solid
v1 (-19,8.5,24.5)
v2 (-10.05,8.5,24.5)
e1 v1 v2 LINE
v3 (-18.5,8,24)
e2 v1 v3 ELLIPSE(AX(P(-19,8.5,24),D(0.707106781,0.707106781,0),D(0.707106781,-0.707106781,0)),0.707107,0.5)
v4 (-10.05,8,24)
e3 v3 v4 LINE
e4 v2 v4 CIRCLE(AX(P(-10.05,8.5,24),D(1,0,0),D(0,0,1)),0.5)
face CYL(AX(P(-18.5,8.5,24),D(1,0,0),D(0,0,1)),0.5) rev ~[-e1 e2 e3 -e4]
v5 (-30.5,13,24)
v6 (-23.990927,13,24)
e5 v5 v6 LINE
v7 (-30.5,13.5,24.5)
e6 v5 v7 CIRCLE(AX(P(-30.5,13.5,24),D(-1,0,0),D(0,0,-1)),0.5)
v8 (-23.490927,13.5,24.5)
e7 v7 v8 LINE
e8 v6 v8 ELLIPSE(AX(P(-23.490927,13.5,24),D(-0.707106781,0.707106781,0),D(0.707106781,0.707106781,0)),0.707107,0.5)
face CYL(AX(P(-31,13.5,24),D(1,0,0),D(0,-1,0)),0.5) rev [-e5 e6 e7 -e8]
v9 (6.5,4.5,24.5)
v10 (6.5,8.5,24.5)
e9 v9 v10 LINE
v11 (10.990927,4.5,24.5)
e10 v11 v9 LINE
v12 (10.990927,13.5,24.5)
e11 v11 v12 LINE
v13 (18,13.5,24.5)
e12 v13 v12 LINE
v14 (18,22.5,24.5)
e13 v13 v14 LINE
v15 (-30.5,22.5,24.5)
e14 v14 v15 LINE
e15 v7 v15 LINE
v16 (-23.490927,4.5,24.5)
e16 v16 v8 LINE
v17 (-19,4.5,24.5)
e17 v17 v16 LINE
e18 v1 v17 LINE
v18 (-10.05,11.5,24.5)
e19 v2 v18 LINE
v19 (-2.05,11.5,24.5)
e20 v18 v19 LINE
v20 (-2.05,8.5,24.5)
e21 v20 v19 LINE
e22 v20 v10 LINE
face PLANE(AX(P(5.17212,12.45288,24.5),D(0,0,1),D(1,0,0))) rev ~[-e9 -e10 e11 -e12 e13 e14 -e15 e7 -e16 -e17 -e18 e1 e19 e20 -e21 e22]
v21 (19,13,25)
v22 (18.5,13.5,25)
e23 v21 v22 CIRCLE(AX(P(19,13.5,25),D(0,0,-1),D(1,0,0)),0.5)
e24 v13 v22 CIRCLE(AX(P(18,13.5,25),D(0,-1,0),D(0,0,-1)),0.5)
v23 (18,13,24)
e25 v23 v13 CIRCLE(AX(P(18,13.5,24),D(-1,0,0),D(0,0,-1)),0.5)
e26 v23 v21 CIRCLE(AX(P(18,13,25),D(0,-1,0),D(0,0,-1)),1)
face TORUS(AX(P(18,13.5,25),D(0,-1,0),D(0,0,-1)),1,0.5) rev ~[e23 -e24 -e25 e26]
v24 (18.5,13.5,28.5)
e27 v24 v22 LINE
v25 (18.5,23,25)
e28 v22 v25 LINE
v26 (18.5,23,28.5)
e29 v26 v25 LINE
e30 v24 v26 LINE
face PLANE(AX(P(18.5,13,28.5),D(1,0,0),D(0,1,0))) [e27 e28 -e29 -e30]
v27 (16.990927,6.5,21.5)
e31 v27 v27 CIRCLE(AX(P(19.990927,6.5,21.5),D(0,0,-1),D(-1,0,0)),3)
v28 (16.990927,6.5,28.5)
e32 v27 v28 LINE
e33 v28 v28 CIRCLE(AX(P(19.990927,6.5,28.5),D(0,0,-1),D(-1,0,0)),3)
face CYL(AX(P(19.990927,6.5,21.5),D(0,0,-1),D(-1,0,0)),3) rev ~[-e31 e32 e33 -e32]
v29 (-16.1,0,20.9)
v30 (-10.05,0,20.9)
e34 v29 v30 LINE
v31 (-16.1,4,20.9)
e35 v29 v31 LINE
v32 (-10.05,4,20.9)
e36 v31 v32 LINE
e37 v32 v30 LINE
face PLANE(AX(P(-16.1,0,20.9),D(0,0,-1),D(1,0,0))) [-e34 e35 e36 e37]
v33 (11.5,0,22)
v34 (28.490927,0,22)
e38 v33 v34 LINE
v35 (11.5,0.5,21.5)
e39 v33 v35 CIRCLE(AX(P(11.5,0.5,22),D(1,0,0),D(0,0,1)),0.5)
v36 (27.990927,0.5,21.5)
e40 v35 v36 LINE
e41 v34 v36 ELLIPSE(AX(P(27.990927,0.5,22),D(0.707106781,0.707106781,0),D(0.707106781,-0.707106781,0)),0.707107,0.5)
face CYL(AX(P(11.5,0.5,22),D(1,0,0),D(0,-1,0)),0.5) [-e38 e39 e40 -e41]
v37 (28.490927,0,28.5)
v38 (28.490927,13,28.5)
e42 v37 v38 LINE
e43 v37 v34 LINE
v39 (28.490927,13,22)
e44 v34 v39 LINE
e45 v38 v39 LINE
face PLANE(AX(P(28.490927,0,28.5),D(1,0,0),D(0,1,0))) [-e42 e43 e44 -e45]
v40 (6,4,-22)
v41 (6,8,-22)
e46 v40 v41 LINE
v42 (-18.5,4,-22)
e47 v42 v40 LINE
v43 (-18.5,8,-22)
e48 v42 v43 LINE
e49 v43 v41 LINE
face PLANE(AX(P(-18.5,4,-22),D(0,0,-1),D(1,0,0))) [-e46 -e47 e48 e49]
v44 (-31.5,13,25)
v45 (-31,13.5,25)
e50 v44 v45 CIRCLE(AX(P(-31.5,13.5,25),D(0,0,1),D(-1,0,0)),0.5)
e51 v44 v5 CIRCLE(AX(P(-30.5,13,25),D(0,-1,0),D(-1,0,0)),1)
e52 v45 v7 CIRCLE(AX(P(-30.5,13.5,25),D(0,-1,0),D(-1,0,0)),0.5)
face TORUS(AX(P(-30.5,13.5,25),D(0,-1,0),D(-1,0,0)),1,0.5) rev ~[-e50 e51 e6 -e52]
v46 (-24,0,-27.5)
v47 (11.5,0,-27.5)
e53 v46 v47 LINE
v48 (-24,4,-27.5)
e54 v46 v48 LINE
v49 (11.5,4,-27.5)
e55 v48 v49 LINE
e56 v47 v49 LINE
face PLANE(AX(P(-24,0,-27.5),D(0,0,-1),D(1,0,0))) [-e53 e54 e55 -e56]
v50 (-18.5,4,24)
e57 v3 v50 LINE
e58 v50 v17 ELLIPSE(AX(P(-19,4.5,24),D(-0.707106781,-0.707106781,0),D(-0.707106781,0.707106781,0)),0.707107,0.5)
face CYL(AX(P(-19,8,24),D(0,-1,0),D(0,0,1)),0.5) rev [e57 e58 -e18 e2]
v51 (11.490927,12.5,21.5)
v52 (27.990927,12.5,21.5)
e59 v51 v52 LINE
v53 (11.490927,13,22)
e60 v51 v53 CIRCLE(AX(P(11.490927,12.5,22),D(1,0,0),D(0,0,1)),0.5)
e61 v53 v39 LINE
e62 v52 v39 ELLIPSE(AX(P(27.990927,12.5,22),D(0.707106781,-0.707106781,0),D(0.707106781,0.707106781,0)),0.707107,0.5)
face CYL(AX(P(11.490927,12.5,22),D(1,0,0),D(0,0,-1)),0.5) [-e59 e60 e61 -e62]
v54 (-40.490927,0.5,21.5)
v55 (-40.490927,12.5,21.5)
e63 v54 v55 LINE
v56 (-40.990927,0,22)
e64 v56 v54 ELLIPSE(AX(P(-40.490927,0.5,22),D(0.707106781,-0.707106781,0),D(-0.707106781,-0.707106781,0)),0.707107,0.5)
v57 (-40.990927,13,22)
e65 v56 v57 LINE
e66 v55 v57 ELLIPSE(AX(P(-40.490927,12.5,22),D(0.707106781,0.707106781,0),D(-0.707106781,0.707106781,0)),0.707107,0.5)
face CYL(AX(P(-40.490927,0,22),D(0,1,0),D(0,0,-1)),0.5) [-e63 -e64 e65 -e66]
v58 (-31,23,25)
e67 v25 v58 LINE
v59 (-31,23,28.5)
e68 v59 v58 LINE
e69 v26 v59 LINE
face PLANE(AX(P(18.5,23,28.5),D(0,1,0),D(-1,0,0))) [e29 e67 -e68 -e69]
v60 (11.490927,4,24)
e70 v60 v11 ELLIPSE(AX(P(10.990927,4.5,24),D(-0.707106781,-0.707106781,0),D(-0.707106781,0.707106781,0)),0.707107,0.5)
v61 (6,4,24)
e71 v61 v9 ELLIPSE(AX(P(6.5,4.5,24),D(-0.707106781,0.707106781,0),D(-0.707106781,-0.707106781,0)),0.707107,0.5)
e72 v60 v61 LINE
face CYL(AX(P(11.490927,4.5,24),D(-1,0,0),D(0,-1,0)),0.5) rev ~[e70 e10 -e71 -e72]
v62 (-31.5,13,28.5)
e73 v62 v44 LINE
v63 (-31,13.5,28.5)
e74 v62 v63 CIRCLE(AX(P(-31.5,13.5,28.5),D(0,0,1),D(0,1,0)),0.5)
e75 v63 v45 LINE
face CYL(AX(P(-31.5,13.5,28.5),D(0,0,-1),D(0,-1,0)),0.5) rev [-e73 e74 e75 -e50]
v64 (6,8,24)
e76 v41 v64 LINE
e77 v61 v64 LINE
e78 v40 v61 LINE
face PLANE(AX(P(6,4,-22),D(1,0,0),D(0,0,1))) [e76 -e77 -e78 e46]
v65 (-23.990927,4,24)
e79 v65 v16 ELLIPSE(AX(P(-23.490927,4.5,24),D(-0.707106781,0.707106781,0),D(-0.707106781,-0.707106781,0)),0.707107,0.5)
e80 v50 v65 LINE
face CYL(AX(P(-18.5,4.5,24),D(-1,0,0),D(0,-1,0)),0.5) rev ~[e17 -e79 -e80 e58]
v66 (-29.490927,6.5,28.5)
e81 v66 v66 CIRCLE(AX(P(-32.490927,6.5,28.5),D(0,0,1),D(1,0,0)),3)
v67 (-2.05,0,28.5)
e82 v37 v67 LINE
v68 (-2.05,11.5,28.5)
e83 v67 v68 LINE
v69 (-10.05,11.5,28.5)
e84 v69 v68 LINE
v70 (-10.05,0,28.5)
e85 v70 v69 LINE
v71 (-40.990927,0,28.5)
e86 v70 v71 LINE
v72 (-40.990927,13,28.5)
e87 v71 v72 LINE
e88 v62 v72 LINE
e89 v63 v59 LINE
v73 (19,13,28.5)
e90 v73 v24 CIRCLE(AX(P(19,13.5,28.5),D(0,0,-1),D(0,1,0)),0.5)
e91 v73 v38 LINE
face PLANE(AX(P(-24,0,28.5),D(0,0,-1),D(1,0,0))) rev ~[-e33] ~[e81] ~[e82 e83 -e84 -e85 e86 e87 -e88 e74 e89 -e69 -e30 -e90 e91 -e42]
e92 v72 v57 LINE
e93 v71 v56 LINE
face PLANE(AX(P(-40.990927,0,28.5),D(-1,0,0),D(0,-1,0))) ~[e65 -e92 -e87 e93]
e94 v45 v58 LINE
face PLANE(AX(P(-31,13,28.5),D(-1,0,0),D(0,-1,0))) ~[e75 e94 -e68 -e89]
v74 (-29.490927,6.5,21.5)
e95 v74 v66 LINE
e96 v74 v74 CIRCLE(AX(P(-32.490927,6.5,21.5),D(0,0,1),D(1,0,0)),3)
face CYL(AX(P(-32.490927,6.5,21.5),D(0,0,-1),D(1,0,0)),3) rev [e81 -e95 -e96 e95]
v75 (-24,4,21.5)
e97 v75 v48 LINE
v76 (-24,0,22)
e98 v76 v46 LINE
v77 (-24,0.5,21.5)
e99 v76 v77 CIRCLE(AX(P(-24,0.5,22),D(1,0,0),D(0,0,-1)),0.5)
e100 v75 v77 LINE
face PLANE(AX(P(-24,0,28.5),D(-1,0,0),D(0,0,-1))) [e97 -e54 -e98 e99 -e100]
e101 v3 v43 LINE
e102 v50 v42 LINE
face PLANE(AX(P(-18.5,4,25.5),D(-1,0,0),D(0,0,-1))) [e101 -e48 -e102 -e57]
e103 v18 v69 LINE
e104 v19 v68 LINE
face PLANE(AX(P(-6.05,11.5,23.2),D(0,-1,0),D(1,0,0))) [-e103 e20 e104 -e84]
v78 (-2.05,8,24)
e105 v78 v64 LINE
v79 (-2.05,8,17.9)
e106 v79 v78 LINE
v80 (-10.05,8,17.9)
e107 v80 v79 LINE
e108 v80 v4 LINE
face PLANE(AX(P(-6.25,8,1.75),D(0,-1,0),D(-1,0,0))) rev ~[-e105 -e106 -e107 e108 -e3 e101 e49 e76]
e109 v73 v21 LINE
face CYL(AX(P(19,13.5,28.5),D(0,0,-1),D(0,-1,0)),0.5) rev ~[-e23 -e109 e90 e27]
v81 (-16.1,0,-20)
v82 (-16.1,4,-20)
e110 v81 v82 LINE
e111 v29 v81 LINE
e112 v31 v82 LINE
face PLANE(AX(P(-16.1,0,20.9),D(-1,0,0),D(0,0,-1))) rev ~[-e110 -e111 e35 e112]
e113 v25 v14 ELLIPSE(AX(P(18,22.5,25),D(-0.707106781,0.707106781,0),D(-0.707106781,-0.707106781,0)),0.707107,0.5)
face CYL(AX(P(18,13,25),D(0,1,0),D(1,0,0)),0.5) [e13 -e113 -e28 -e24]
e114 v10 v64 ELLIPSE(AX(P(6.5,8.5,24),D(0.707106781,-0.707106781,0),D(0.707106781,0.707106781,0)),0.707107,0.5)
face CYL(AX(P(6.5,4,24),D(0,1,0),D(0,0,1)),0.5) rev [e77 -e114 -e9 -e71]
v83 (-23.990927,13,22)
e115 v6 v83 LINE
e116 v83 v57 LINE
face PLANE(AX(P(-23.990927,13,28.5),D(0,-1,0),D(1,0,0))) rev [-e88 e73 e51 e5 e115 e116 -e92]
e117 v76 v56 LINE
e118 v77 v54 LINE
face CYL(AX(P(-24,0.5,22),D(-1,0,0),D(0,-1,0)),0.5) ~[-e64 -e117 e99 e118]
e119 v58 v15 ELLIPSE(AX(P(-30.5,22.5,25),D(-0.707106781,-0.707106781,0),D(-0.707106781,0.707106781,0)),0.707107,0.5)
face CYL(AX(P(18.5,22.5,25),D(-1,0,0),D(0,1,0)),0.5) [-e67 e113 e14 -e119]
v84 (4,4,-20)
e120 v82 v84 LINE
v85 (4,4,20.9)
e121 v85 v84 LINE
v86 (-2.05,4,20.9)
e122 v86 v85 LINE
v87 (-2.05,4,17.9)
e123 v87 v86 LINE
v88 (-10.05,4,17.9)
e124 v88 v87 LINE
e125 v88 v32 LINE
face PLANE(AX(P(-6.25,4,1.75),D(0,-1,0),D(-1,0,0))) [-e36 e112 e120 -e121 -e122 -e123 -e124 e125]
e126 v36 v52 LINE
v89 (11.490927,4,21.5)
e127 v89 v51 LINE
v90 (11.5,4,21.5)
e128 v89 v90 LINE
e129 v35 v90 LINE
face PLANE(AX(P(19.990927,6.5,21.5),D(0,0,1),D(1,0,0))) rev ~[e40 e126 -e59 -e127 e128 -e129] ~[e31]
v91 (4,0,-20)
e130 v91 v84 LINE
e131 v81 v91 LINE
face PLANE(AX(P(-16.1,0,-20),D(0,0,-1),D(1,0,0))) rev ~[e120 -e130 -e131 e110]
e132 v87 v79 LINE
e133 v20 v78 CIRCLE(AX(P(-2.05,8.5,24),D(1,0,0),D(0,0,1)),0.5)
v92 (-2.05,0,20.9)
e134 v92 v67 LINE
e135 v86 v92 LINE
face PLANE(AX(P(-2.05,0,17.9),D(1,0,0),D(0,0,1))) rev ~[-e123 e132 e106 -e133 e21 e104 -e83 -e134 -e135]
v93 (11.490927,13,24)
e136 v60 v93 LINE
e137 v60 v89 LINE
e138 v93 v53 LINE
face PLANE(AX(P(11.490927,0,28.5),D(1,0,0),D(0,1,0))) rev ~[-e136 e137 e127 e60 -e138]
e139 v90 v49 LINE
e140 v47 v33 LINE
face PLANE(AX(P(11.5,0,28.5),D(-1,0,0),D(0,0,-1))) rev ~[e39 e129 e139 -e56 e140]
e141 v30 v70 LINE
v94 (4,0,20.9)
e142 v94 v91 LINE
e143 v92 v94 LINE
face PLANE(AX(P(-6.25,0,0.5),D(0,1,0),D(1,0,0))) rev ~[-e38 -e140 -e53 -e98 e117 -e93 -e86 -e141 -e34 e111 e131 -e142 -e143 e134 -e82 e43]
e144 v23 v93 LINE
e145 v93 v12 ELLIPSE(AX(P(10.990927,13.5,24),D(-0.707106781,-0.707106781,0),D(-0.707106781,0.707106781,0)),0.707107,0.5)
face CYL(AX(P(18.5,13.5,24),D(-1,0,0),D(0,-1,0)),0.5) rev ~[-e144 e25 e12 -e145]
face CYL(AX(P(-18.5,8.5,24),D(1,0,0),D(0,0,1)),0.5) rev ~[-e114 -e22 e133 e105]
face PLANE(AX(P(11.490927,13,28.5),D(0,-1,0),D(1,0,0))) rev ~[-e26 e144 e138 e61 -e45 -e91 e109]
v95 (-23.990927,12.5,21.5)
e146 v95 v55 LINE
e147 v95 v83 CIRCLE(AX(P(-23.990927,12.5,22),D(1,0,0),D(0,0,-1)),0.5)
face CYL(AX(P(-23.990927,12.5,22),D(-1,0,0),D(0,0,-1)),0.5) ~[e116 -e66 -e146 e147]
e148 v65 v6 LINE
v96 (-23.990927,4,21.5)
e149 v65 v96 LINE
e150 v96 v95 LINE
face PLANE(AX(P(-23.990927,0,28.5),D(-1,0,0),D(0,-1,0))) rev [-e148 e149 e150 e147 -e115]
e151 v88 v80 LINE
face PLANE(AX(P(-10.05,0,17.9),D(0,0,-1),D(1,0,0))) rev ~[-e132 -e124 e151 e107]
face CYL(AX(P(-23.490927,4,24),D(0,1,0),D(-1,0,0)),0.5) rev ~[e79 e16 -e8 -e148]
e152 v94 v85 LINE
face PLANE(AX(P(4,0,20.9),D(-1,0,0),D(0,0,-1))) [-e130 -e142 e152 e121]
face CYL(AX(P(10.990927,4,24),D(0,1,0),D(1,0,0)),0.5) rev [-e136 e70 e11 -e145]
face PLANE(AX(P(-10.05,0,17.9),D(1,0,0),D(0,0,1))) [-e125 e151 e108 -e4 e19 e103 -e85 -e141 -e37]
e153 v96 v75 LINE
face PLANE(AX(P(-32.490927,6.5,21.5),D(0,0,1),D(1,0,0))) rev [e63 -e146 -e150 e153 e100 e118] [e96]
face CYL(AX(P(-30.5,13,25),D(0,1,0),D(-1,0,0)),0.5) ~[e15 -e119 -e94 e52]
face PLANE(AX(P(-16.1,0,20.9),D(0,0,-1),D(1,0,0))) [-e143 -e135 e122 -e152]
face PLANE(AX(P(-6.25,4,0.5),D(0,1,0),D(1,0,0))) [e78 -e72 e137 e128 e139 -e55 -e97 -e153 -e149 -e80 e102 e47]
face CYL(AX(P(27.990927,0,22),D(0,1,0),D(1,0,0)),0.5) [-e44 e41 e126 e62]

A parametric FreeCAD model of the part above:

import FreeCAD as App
import Part
import Sketcher
from FreeCAD import Vector
Q = App.Units.Quantity


def edges_at(feature, points):
    """Names of the edges that pass closest to the given points."""
    edges = feature.Shape.Edges
    near = lambda p: min(range(len(edges)), key=lambda i: edges[i].distToShape(Part.Vertex(*p))[0])
    return sorted({f"Edge{near(p) + 1}" for p in points})


def add_polygon(sketch, points):
    """Adds a closed chain of lines whose ends are joined by coincident constraints."""
    first, n = sketch.GeometryCount, len(points)
    for a, b in zip(points, points[1:] + points[:1]):
        sketch.addGeometry(Part.LineSegment(App.Vector(*a, 0), App.Vector(*b, 0)), False)
    for i in range(n):
        sketch.addConstraint(Sketcher.Constraint("Coincident", first + i, 2, first + (i + 1) % n, 1))

doc = App.newDocument("Part")
params = doc.addObject("Spreadsheet::Sheet", "Params")
for row, (alias, value) in enumerate([
    ("sketch1_height", "56 mm"),
    ("sketch1_width", "35.5 mm"),
    ("sketch1_width2", "20.1 mm"),
    ("sketch1_height2", "40.9 mm"),
    ("pad1_length", "4 mm"),
    ("sketch2_width", "7 mm"),
    ("sketch2_height", "13 mm"),
    ("sketch2_height2", "10 mm"),
    ("sketch2_width2", "17.75 mm"),
    ("pad2_length", "4 mm"),
    ("sketch3_width", "24.5 mm"),
    ("sketch3_height", "47.5 mm"),
    ("pad3_length", "4 mm"),
    ("sketch4_width", "17 mm"),
    ("sketch4_height", "13 mm"),
    ("pad4_length", "7 mm"),
    ("sketch5_diameter", "6 mm"),
    ("pocket1_length", "7 mm"),
    ("fillet_radius", "0.5 mm"),
    ("sketch6_width", "8 mm"),
    ("sketch6_height", "10.6 mm"),
    ("pocket2_length", "11.5 mm"),
], start=1):
    params.set(f"A{row}", alias)
    params.set(f"B{row}", "=" + value)
    params.setAlias(f"B{row}", alias)

body = doc.addObject("PartDesign::Body", "Body")

# Sketch on XZ plane
sketch1 = body.newObject("Sketcher::SketchObject", "Sketch")
sketch1.AttachmentSupport = (doc.getObject("XZ_Plane"), [""])
sketch1.MapMode = "FlatFace"
add_polygon(sketch1, [(-24, -28), (-24, 28), (12, 28), (12, -28)])  # lines 0-3
add_polygon(sketch1, [(4, 21), (-16, 21), (-16, -20), (4, -20)])  # lines 4-7
sketch1.addConstraint(Sketcher.Constraint("Vertical", 0))
sketch1.addConstraint(Sketcher.Constraint("Horizontal", 1))
sketch1.addConstraint(Sketcher.Constraint("Vertical", 2))
sketch1.addConstraint(Sketcher.Constraint("Horizontal", 3))
sketch1.addConstraint(Sketcher.Constraint("Horizontal", 4))
sketch1.addConstraint(Sketcher.Constraint("Vertical", 5))
sketch1.addConstraint(Sketcher.Constraint("Horizontal", 6))
sketch1.addConstraint(Sketcher.Constraint("Vertical", 7))
sketch1.addConstraint(Sketcher.Constraint("DistanceY", 0, 1, 0, 2, Q("56 mm")))
sketch1.addConstraint(Sketcher.Constraint("DistanceX", 1, 1, 1, 2, Q("35.5 mm")))
sketch1.addConstraint(Sketcher.Constraint("DistanceX", 4, 2, 4, 1, Q("20.1 mm")))
sketch1.addConstraint(Sketcher.Constraint("DistanceY", 5, 2, 5, 1, Q("40.9 mm")))
sketch1.addConstraint(Sketcher.Constraint("DistanceX", 0, 2, -1, 1, Q("24 mm")))
sketch1.addConstraint(Sketcher.Constraint("DistanceY", 5, 2, -1, 1, Q("20 mm")))
sketch1.addConstraint(Sketcher.Constraint("DistanceX", -1, 1, 6, 2, Q("4 mm")))
sketch1.addConstraint(Sketcher.Constraint("DistanceY", -1, 1, 0, 2, Q("28.5 mm")))
sketch1.setExpression("Constraints[16]", "Params.sketch1_height")
sketch1.setExpression("Constraints[17]", "Params.sketch1_width")
sketch1.setExpression("Constraints[18]", "Params.sketch1_width2")
sketch1.setExpression("Constraints[19]", "Params.sketch1_height2")
pad1 = body.newObject("PartDesign::Pad", "Pad")
pad1.Profile = sketch1
pad1.setExpression("Length", "Params.pad1_length")
pad1.Reversed = True

# Sketch on XY plane
sketch2 = body.newObject("Sketcher::SketchObject", "Sketch001")
sketch2.AttachmentSupport = (doc.getObject("XY_Plane"), [""])
sketch2.MapMode = "FlatFace"
sketch2.AttachmentOffset = App.Placement(Vector(0, 0, 28.5), App.Rotation())
add_polygon(sketch2, [(-6, 0), (12, 0), (12, 13), (18, 13), (18, 23), (-6, 23)])  # lines 0-5
sketch2.addConstraint(Sketcher.Constraint("Horizontal", 0))
sketch2.addConstraint(Sketcher.Constraint("Vertical", 1))
sketch2.addConstraint(Sketcher.Constraint("Horizontal", 2))
sketch2.addConstraint(Sketcher.Constraint("Vertical", 3))
sketch2.addConstraint(Sketcher.Constraint("Horizontal", 4))
sketch2.addConstraint(Sketcher.Constraint("Vertical", 5))
sketch2.addConstraint(Sketcher.Constraint("PointOnObject", 0, 2, -1))
sketch2.addConstraint(Sketcher.Constraint("DistanceX", 2, 1, 2, 2, Q("7 mm")))
sketch2.addConstraint(Sketcher.Constraint("DistanceY", 1, 1, 1, 2, Q("13 mm")))
sketch2.addConstraint(Sketcher.Constraint("DistanceY", 3, 1, 3, 2, Q("10 mm")))
sketch2.addConstraint(Sketcher.Constraint("DistanceX", 0, 1, 0, 2, Q("17.75 mm")))
sketch2.addConstraint(Sketcher.Constraint("DistanceX", -1, 1, 0, 2, Q("11.5 mm")))
sketch2.setExpression("Constraints[13]", "Params.sketch2_width")
sketch2.setExpression("Constraints[14]", "Params.sketch2_height")
sketch2.setExpression("Constraints[15]", "Params.sketch2_height2")
sketch2.setExpression("Constraints[16]", "Params.sketch2_width2")
pad2 = body.newObject("PartDesign::Pad", "Pad001")
pad2.Profile = sketch2
pad2.setExpression("Length", "Params.pad2_length")
pad2.Reversed = True
doc.recompute()

datumplane = body.newObject("PartDesign::Plane", "DatumPlane")
datumplane.AttachmentSupport = (doc.getObject("YZ_Plane"), [""])
datumplane.MapMode = "FlatFace"
datumplane.AttachmentOffset = App.Placement(Vector(0, 0, -6.25), App.Rotation())
mirrored = body.newObject("PartDesign::Mirrored", "Mirrored")
mirrored.Originals = [pad2]
mirrored.MirrorPlane = (datumplane, [""])
body.Tip = mirrored

# Sketch on XZ plane
sketch3 = body.newObject("Sketcher::SketchObject", "Sketch002")
sketch3.AttachmentSupport = (doc.getObject("XZ_Plane"), [""])
sketch3.MapMode = "FlatFace"
sketch3.AttachmentOffset = App.Placement(Vector(0, 0, -4), App.Rotation())
add_polygon(sketch3, [(-18, 26), (-18, -22), (6, -22), (6, 26)])  # lines 0-3
sketch3.addConstraint(Sketcher.Constraint("Vertical", 0))
sketch3.addConstraint(Sketcher.Constraint("Horizontal", 1))
sketch3.addConstraint(Sketcher.Constraint("Vertical", 2))
sketch3.addConstraint(Sketcher.Constraint("Horizontal", 3))
sketch3.addConstraint(Sketcher.Constraint("DistanceX", 1, 1, 1, 2, Q("24.5 mm")))
sketch3.addConstraint(Sketcher.Constraint("DistanceY", 0, 2, 0, 1, Q("47.5 mm")))
sketch3.addConstraint(Sketcher.Constraint("DistanceY", 0, 2, -1, 1, Q("22 mm")))
sketch3.addConstraint(Sketcher.Constraint("DistanceX", -1, 1, 1, 2, Q("6 mm")))
sketch3.setExpression("Constraints[8]", "Params.sketch3_width")
sketch3.setExpression("Constraints[9]", "Params.sketch3_height")
pad3 = body.newObject("PartDesign::Pad", "Pad002")
pad3.Profile = sketch3
pad3.setExpression("Length", "Params.pad3_length")
pad3.Reversed = True

# Sketch on XY plane
sketch4 = body.newObject("Sketcher::SketchObject", "Sketch003")
sketch4.AttachmentSupport = (doc.getObject("XY_Plane"), [""])
sketch4.MapMode = "FlatFace"
sketch4.AttachmentOffset = App.Placement(Vector(0, 0, 28.5), App.Rotation())
add_polygon(sketch4, [(11, 13), (11, 0), (28, 0), (28, 13)])  # lines 0-3
sketch4.addConstraint(Sketcher.Constraint("Vertical", 0))
sketch4.addConstraint(Sketcher.Constraint("Horizontal", 1))
sketch4.addConstraint(Sketcher.Constraint("Vertical", 2))
sketch4.addConstraint(Sketcher.Constraint("Horizontal", 3))
sketch4.addConstraint(Sketcher.Constraint("PointOnObject", 0, 2, -1))
sketch4.addConstraint(Sketcher.Constraint("DistanceX", 1, 1, 1, 2, Q("17 mm")))
sketch4.addConstraint(Sketcher.Constraint("DistanceY", 0, 2, 0, 1, Q("13 mm")))
sketch4.addConstraint(Sketcher.Constraint("DistanceX", -1, 1, 0, 2, Q("11.490927 mm")))
sketch4.setExpression("Constraints[9]", "Params.sketch4_width")
sketch4.setExpression("Constraints[10]", "Params.sketch4_height")
pad4 = body.newObject("PartDesign::Pad", "Pad003")
pad4.Profile = sketch4
pad4.setExpression("Length", "Params.pad4_length")
pad4.Reversed = True
doc.recompute()

datumplane2 = body.newObject("PartDesign::Plane", "DatumPlane001")
datumplane2.AttachmentSupport = (doc.getObject("YZ_Plane"), [""])
datumplane2.MapMode = "FlatFace"
datumplane2.AttachmentOffset = App.Placement(Vector(0, 0, -6.25), App.Rotation())
mirrored2 = body.newObject("PartDesign::Mirrored", "Mirrored001")
mirrored2.Originals = [pad4]
mirrored2.MirrorPlane = (datumplane2, [""])
body.Tip = mirrored2

# Sketch on XY plane
sketch5 = body.newObject("Sketcher::SketchObject", "Sketch004")
sketch5.AttachmentSupport = (doc.getObject("XY_Plane"), [""])
sketch5.MapMode = "FlatFace"
sketch5.AttachmentOffset = App.Placement(Vector(0, 0, 21.5), App.Rotation())
sketch5.addGeometry(Part.Circle(Vector(20, 6.5, 0), Vector(0, 0, 1), 3), False)
sketch5.addConstraint(Sketcher.Constraint("Diameter", 0, Q("6 mm")))
sketch5.addConstraint(Sketcher.Constraint("DistanceY", -1, 1, 0, 3, Q("6.5 mm")))
sketch5.addConstraint(Sketcher.Constraint("DistanceX", -1, 1, 0, 3, Q("19.990927 mm")))
sketch5.setExpression("Constraints[0]", "Params.sketch5_diameter")
pocket1 = body.newObject("PartDesign::Pocket", "Pocket")
pocket1.Profile = sketch5
pocket1.setExpression("Length", "Params.pocket1_length")
pocket1.Reversed = True
doc.recompute()

datumplane3 = body.newObject("PartDesign::Plane", "DatumPlane002")
datumplane3.AttachmentSupport = (doc.getObject("YZ_Plane"), [""])
datumplane3.MapMode = "FlatFace"
datumplane3.AttachmentOffset = App.Placement(Vector(0, 0, -6.25), App.Rotation())
mirrored3 = body.newObject("PartDesign::Mirrored", "Mirrored002")
mirrored3.Originals = [pocket1]
mirrored3.MirrorPlane = (datumplane3, [""])
body.Tip = mirrored3
doc.recompute()

fillet = body.newObject("PartDesign::Fillet", "Fillet")
fillet.Base = (mirrored3, edges_at(mirrored3, [
    (19.995, 0, 21.5),
    (11.491, 8.5, 24.5),
    (19.991, 13, 21.5),
    (28.491, 6.5, 21.5),
    (-21.245, 4, 24.5),
    (-23.991, 8.5, 24.5),
    (-32.495, 0, 21.5),
    (-40.991, 6.5, 21.5),
    (-32.491, 13, 21.5),
    (14.995, 13, 24.5),
    (18.5, 13, 26.5),
    (-6.25, 23, 24.5),
    (18.5, 18, 24.5),
    (-31, 13, 26.5),
    (-27.495, 13, 24.5),
    (-31, 18, 24.5),
    (8.745, 4, 24.5),
    (-6.25, 8, 24.5),
    (6, 6, 24.5),
    (-18.5, 6, 24.5),
]))
fillet.setExpression("Radius", "Params.fillet_radius")

# Sketch on XZ plane
sketch6 = body.newObject("Sketcher::SketchObject", "Sketch005")
sketch6.AttachmentSupport = (doc.getObject("XZ_Plane"), [""])
sketch6.MapMode = "FlatFace"
add_polygon(sketch6, [(-10, 28), (-10, 18), (-2, 18), (-2, 28)])  # lines 0-3
sketch6.addConstraint(Sketcher.Constraint("Vertical", 0))
sketch6.addConstraint(Sketcher.Constraint("Horizontal", 1))
sketch6.addConstraint(Sketcher.Constraint("Vertical", 2))
sketch6.addConstraint(Sketcher.Constraint("Horizontal", 3))
sketch6.addConstraint(Sketcher.Constraint("DistanceX", 1, 1, 1, 2, Q("8 mm")))
sketch6.addConstraint(Sketcher.Constraint("DistanceY", 0, 2, 0, 1, Q("10.6 mm")))
sketch6.addConstraint(Sketcher.Constraint("DistanceY", -1, 1, 0, 2, Q("17.9 mm")))
sketch6.addConstraint(Sketcher.Constraint("DistanceX", 0, 2, -1, 1, Q("10.05 mm")))
sketch6.setExpression("Constraints[8]", "Params.sketch6_width")
sketch6.setExpression("Constraints[9]", "Params.sketch6_height")
pocket2 = body.newObject("PartDesign::Pocket", "Pocket001")
pocket2.Profile = sketch6
pocket2.setExpression("Length", "Params.pocket2_length")

doc.recompute()
